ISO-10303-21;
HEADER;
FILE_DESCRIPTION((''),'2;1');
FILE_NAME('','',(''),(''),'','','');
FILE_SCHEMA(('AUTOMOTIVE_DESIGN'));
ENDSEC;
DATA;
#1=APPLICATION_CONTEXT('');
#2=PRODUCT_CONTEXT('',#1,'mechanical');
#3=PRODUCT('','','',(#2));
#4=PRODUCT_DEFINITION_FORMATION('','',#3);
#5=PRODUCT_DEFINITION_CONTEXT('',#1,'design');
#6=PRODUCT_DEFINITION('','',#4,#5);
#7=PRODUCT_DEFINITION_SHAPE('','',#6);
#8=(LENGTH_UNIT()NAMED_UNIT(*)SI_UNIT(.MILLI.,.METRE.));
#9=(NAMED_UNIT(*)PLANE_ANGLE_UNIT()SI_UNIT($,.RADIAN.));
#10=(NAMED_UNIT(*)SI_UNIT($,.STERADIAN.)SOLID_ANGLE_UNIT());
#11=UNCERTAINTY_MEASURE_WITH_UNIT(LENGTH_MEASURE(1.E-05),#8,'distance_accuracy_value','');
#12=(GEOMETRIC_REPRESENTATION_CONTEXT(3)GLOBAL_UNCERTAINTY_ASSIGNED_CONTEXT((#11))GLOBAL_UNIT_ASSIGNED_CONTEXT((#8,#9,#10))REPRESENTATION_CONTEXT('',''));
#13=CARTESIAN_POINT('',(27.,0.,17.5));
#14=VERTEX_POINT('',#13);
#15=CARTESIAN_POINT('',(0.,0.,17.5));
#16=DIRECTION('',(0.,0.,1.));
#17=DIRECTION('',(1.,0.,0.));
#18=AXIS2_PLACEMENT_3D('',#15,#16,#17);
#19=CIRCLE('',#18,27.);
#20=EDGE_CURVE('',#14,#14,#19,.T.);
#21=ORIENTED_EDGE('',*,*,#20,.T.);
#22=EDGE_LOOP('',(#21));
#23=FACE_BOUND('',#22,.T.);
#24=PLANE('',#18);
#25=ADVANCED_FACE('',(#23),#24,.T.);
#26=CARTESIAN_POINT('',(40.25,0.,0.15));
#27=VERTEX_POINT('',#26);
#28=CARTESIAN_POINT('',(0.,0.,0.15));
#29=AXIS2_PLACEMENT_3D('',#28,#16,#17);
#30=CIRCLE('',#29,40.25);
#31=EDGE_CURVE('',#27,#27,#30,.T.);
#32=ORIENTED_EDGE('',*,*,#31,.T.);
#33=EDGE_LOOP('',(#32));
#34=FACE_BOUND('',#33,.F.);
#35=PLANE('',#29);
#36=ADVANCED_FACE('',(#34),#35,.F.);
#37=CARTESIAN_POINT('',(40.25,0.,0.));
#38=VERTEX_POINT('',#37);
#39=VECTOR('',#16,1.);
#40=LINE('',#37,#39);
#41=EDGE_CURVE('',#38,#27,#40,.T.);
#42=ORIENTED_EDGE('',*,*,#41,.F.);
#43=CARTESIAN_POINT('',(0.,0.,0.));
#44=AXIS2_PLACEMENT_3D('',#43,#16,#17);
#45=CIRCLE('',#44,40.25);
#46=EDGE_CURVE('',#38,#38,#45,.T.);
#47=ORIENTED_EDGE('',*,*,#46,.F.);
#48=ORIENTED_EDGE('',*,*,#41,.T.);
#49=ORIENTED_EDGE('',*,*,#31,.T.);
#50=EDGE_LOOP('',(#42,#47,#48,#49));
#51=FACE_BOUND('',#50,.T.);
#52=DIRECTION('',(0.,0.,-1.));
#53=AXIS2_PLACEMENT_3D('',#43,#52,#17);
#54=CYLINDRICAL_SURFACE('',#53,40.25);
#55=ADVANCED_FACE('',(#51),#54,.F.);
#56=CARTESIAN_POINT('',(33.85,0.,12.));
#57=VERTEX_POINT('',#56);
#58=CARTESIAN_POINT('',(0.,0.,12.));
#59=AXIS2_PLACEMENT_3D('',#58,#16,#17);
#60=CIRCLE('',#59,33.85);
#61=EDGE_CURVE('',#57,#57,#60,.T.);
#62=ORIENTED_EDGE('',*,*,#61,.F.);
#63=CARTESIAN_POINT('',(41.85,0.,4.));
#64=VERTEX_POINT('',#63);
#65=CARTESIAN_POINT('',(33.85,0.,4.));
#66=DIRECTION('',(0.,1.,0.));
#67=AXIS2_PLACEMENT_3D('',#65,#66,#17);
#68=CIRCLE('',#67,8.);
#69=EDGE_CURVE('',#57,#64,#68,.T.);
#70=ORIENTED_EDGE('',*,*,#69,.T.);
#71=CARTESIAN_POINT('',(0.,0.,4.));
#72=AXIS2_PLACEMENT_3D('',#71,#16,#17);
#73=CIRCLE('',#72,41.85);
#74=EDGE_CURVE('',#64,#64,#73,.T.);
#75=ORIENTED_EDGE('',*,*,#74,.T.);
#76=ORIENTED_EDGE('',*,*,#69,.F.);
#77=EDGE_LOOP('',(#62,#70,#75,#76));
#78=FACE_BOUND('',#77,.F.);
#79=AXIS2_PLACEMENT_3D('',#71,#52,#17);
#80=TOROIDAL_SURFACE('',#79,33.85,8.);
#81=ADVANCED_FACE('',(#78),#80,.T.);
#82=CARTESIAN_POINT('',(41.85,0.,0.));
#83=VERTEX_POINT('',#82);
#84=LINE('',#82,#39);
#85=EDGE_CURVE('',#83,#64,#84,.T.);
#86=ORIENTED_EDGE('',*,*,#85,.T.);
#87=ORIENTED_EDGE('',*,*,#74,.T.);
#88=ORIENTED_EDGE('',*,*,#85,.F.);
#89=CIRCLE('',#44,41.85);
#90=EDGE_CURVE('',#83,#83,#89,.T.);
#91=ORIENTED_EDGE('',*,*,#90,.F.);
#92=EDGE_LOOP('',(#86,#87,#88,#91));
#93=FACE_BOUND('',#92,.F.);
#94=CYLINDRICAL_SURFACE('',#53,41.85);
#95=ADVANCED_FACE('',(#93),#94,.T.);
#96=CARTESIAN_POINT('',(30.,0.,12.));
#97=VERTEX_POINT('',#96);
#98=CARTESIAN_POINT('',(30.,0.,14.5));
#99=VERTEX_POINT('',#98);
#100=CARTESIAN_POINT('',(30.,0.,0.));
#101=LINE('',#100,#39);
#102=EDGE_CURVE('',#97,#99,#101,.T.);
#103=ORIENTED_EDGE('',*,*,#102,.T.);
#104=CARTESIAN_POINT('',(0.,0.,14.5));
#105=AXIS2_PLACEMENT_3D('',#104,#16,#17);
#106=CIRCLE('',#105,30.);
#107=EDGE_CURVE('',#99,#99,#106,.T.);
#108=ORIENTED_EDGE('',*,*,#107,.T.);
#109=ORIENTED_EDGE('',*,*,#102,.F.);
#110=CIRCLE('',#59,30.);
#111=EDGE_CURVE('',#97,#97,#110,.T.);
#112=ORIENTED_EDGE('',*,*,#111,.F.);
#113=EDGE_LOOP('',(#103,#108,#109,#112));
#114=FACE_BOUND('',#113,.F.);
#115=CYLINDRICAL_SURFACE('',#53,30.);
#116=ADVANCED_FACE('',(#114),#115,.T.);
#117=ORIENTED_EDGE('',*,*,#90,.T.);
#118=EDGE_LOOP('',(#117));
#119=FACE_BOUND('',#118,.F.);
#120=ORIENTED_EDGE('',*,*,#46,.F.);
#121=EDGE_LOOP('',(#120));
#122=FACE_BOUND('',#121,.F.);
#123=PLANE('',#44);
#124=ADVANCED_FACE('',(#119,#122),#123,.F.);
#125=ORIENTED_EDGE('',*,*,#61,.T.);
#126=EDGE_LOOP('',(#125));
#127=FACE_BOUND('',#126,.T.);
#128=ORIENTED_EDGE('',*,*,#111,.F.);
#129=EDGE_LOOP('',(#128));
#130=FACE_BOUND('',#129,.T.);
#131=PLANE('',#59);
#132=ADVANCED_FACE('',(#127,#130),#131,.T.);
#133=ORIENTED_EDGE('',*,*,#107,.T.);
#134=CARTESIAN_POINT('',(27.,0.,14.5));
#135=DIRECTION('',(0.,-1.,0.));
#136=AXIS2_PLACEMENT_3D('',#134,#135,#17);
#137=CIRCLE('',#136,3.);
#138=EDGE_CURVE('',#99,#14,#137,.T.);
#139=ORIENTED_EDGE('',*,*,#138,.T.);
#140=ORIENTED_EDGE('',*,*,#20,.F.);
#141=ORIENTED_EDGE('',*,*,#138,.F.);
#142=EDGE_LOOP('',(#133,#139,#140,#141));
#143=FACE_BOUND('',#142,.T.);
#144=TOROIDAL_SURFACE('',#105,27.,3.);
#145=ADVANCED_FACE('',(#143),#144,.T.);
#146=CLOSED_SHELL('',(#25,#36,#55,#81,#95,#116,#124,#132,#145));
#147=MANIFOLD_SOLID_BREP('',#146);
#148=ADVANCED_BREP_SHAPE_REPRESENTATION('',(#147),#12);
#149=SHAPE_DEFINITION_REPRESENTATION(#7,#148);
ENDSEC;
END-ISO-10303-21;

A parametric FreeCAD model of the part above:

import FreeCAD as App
import Part
import Sketcher
from FreeCAD import Vector
Q = App.Units.Quantity


def edges_at(feature, points):
    """Names of the edges that pass closest to the given points."""
    edges = feature.Shape.Edges
    near = lambda p: min(range(len(edges)), key=lambda i: edges[i].distToShape(Part.Vertex(*p))[0])
    return sorted({f"Edge{near(p) + 1}" for p in points})

doc = App.newDocument("Part")
body = doc.addObject("PartDesign::Body", "Body")

sketch1 = body.newObject("Sketcher::SketchObject", "Sketch")
sketch1.AttachmentSupport = (doc.getObject("XY_Plane"), [""])
sketch1.MapMode = "FlatFace"
sketch1.addGeometry(Part.Circle(Vector(0, 0, 0), Vector(0, 0, 1), 30), False)
sketch1.addConstraint([
    Sketcher.Constraint("Coincident", 0, 3, -1, 1),
    Sketcher.Constraint("Diameter", 0, Q("60 mm")),
])
pad1 = body.newObject("PartDesign::Pad", "Pad")
pad1.Profile = sketch1
pad1.Length = 17.5

sketch2 = body.newObject("Sketcher::SketchObject", "Sketch001")
sketch2.AttachmentSupport = (doc.getObject("XY_Plane"), [""])
sketch2.MapMode = "FlatFace"
sketch2.addGeometry([
    Part.Circle(Vector(0, 0, 0), Vector(0, 0, 1), 42),
    Part.Circle(Vector(0, 0, 0), Vector(0, 0, 1), 30),
], False)
sketch2.addConstraint([
    Sketcher.Constraint("Coincident", 0, 3, -1, 1),
    Sketcher.Constraint("Coincident", 1, 3, -1, 1),
    Sketcher.Constraint("Diameter", 1, Q("60 mm")),
    Sketcher.Constraint("Diameter", 0, Q("83.7 mm")),
])
pad2 = body.newObject("PartDesign::Pad", "Pad001")
pad2.Profile = sketch2
pad2.Length = 12

sketch3 = body.newObject("Sketcher::SketchObject", "Sketch002")
sketch3.AttachmentSupport = (doc.getObject("XY_Plane"), [""])
sketch3.MapMode = "FlatFace"
sketch3.addGeometry(Part.Circle(Vector(0, 0, 0), Vector(0, 0, 1), 40), False)
sketch3.addConstraint([
    Sketcher.Constraint("Coincident", 0, 3, -1, 1),
    Sketcher.Constraint("Diameter", 0, Q("80.5 mm")),
])
pocket1 = body.newObject("PartDesign::Pocket", "Pocket")
pocket1.Profile = sketch3
pocket1.Length = 0.15
pocket1.Reversed = True
doc.recompute()

fillet = body.newObject("PartDesign::Fillet", "Fillet")
fillet.Base = (pocket1, edges_at(pocket1, [(-30, 0, 17.5)]))
fillet.Radius = 3
doc.recompute()

fillet2 = body.newObject("PartDesign::Fillet", "Fillet001")
fillet2.Base = (fillet, edges_at(fillet, [(-41.85, 0, 12)]))
fillet2.Radius = 8

doc.recompute()
